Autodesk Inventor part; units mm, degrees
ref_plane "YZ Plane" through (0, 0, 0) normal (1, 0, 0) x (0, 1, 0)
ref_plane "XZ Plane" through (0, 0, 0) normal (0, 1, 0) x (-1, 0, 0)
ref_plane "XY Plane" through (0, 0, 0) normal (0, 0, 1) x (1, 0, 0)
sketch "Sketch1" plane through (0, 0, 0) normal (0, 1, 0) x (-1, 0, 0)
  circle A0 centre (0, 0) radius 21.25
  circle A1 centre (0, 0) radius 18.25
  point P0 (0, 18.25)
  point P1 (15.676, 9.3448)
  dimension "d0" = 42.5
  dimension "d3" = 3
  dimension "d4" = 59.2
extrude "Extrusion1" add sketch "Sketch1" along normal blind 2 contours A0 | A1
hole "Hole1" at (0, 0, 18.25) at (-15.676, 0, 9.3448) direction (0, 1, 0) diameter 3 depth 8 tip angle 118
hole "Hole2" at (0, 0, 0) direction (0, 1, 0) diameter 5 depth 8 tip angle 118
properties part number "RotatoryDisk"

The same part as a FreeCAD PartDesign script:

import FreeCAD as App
import Part
import Sketcher
from FreeCAD import Vector

doc = App.newDocument("Part")
body = doc.addObject("PartDesign::Body", "Body")

# Sketch on XZ plane
sketch1 = body.newObject("Sketcher::SketchObject", "Sketch")
sketch1.AttachmentSupport = (doc.getObject("XZ_Plane"), [""])
sketch1.MapMode = "FlatFace"
sketch1.addGeometry(Part.Circle(Vector(0, 0, 0), Vector(0, 0, 1), 21), False)
sketch1.addConstraint(Sketcher.Constraint("Coincident", 0, 3, -1, 1))
sketch1.addConstraint(Sketcher.Constraint("Diameter", 0, 42.5))
pad1 = body.newObject("PartDesign::Pad", "Pad")
pad1.Profile = sketch1
pad1.Length = 2
pad1.Reversed = True

# Sketch on XZ plane
sketch2 = body.newObject("Sketcher::SketchObject", "Sketch001")
sketch2.AttachmentSupport = (doc.getObject("XZ_Plane"), [""])
sketch2.MapMode = "FlatFace"
sketch2.addGeometry(Part.Circle(Vector(0, 18.2, 0), Vector(0, 0, 1), 1.5), False)
sketch2.addGeometry(Part.Circle(Vector(-15.7, 9.3, 0), Vector(0, 0, 1), 1.5), False)
sketch2.addConstraint(Sketcher.Constraint("Equal", 0, 1))
sketch2.addConstraint(Sketcher.Constraint("PointOnObject", 0, 3, -2))
sketch2.addConstraint(Sketcher.Constraint("Diameter", 0, 3.0))
sketch2.addConstraint(Sketcher.Constraint("DistanceY", -1, 1, 0, 3, 18.25))
sketch2.addConstraint(Sketcher.Constraint("DistanceX", 1, 3, -1, 1, 15.676))
sketch2.addConstraint(Sketcher.Constraint("DistanceY", -1, 1, 1, 3, 9.3448))
doc.recompute()
hole = body.newObject("PartDesign::Hole", "Hole")
hole.Profile = sketch2
hole.ThreadType = "None"
hole.Diameter = 3
hole.DepthType = "Dimension"
hole.Depth = 8
hole.DrillPoint = "Angled"
hole.DrillPointAngle = 118

# Sketch on XZ plane
sketch3 = body.newObject("Sketcher::SketchObject", "Sketch002")
sketch3.AttachmentSupport = (doc.getObject("XZ_Plane"), [""])
sketch3.MapMode = "FlatFace"
sketch3.addGeometry(Part.Circle(Vector(0, 0, 0), Vector(0, 0, 1), 2.5), False)
sketch3.addConstraint(Sketcher.Constraint("Coincident", 0, 3, -1, 1))
sketch3.addConstraint(Sketcher.Constraint("Diameter", 0, 5.0))
doc.recompute()
hole2 = body.newObject("PartDesign::Hole", "Hole001")
hole2.Profile = sketch3
hole2.ThreadType = "None"
hole2.Diameter = 5
hole2.DepthType = "Dimension"
hole2.Depth = 8
hole2.DrillPoint = "Angled"
hole2.DrillPointAngle = 118

doc.recompute()
